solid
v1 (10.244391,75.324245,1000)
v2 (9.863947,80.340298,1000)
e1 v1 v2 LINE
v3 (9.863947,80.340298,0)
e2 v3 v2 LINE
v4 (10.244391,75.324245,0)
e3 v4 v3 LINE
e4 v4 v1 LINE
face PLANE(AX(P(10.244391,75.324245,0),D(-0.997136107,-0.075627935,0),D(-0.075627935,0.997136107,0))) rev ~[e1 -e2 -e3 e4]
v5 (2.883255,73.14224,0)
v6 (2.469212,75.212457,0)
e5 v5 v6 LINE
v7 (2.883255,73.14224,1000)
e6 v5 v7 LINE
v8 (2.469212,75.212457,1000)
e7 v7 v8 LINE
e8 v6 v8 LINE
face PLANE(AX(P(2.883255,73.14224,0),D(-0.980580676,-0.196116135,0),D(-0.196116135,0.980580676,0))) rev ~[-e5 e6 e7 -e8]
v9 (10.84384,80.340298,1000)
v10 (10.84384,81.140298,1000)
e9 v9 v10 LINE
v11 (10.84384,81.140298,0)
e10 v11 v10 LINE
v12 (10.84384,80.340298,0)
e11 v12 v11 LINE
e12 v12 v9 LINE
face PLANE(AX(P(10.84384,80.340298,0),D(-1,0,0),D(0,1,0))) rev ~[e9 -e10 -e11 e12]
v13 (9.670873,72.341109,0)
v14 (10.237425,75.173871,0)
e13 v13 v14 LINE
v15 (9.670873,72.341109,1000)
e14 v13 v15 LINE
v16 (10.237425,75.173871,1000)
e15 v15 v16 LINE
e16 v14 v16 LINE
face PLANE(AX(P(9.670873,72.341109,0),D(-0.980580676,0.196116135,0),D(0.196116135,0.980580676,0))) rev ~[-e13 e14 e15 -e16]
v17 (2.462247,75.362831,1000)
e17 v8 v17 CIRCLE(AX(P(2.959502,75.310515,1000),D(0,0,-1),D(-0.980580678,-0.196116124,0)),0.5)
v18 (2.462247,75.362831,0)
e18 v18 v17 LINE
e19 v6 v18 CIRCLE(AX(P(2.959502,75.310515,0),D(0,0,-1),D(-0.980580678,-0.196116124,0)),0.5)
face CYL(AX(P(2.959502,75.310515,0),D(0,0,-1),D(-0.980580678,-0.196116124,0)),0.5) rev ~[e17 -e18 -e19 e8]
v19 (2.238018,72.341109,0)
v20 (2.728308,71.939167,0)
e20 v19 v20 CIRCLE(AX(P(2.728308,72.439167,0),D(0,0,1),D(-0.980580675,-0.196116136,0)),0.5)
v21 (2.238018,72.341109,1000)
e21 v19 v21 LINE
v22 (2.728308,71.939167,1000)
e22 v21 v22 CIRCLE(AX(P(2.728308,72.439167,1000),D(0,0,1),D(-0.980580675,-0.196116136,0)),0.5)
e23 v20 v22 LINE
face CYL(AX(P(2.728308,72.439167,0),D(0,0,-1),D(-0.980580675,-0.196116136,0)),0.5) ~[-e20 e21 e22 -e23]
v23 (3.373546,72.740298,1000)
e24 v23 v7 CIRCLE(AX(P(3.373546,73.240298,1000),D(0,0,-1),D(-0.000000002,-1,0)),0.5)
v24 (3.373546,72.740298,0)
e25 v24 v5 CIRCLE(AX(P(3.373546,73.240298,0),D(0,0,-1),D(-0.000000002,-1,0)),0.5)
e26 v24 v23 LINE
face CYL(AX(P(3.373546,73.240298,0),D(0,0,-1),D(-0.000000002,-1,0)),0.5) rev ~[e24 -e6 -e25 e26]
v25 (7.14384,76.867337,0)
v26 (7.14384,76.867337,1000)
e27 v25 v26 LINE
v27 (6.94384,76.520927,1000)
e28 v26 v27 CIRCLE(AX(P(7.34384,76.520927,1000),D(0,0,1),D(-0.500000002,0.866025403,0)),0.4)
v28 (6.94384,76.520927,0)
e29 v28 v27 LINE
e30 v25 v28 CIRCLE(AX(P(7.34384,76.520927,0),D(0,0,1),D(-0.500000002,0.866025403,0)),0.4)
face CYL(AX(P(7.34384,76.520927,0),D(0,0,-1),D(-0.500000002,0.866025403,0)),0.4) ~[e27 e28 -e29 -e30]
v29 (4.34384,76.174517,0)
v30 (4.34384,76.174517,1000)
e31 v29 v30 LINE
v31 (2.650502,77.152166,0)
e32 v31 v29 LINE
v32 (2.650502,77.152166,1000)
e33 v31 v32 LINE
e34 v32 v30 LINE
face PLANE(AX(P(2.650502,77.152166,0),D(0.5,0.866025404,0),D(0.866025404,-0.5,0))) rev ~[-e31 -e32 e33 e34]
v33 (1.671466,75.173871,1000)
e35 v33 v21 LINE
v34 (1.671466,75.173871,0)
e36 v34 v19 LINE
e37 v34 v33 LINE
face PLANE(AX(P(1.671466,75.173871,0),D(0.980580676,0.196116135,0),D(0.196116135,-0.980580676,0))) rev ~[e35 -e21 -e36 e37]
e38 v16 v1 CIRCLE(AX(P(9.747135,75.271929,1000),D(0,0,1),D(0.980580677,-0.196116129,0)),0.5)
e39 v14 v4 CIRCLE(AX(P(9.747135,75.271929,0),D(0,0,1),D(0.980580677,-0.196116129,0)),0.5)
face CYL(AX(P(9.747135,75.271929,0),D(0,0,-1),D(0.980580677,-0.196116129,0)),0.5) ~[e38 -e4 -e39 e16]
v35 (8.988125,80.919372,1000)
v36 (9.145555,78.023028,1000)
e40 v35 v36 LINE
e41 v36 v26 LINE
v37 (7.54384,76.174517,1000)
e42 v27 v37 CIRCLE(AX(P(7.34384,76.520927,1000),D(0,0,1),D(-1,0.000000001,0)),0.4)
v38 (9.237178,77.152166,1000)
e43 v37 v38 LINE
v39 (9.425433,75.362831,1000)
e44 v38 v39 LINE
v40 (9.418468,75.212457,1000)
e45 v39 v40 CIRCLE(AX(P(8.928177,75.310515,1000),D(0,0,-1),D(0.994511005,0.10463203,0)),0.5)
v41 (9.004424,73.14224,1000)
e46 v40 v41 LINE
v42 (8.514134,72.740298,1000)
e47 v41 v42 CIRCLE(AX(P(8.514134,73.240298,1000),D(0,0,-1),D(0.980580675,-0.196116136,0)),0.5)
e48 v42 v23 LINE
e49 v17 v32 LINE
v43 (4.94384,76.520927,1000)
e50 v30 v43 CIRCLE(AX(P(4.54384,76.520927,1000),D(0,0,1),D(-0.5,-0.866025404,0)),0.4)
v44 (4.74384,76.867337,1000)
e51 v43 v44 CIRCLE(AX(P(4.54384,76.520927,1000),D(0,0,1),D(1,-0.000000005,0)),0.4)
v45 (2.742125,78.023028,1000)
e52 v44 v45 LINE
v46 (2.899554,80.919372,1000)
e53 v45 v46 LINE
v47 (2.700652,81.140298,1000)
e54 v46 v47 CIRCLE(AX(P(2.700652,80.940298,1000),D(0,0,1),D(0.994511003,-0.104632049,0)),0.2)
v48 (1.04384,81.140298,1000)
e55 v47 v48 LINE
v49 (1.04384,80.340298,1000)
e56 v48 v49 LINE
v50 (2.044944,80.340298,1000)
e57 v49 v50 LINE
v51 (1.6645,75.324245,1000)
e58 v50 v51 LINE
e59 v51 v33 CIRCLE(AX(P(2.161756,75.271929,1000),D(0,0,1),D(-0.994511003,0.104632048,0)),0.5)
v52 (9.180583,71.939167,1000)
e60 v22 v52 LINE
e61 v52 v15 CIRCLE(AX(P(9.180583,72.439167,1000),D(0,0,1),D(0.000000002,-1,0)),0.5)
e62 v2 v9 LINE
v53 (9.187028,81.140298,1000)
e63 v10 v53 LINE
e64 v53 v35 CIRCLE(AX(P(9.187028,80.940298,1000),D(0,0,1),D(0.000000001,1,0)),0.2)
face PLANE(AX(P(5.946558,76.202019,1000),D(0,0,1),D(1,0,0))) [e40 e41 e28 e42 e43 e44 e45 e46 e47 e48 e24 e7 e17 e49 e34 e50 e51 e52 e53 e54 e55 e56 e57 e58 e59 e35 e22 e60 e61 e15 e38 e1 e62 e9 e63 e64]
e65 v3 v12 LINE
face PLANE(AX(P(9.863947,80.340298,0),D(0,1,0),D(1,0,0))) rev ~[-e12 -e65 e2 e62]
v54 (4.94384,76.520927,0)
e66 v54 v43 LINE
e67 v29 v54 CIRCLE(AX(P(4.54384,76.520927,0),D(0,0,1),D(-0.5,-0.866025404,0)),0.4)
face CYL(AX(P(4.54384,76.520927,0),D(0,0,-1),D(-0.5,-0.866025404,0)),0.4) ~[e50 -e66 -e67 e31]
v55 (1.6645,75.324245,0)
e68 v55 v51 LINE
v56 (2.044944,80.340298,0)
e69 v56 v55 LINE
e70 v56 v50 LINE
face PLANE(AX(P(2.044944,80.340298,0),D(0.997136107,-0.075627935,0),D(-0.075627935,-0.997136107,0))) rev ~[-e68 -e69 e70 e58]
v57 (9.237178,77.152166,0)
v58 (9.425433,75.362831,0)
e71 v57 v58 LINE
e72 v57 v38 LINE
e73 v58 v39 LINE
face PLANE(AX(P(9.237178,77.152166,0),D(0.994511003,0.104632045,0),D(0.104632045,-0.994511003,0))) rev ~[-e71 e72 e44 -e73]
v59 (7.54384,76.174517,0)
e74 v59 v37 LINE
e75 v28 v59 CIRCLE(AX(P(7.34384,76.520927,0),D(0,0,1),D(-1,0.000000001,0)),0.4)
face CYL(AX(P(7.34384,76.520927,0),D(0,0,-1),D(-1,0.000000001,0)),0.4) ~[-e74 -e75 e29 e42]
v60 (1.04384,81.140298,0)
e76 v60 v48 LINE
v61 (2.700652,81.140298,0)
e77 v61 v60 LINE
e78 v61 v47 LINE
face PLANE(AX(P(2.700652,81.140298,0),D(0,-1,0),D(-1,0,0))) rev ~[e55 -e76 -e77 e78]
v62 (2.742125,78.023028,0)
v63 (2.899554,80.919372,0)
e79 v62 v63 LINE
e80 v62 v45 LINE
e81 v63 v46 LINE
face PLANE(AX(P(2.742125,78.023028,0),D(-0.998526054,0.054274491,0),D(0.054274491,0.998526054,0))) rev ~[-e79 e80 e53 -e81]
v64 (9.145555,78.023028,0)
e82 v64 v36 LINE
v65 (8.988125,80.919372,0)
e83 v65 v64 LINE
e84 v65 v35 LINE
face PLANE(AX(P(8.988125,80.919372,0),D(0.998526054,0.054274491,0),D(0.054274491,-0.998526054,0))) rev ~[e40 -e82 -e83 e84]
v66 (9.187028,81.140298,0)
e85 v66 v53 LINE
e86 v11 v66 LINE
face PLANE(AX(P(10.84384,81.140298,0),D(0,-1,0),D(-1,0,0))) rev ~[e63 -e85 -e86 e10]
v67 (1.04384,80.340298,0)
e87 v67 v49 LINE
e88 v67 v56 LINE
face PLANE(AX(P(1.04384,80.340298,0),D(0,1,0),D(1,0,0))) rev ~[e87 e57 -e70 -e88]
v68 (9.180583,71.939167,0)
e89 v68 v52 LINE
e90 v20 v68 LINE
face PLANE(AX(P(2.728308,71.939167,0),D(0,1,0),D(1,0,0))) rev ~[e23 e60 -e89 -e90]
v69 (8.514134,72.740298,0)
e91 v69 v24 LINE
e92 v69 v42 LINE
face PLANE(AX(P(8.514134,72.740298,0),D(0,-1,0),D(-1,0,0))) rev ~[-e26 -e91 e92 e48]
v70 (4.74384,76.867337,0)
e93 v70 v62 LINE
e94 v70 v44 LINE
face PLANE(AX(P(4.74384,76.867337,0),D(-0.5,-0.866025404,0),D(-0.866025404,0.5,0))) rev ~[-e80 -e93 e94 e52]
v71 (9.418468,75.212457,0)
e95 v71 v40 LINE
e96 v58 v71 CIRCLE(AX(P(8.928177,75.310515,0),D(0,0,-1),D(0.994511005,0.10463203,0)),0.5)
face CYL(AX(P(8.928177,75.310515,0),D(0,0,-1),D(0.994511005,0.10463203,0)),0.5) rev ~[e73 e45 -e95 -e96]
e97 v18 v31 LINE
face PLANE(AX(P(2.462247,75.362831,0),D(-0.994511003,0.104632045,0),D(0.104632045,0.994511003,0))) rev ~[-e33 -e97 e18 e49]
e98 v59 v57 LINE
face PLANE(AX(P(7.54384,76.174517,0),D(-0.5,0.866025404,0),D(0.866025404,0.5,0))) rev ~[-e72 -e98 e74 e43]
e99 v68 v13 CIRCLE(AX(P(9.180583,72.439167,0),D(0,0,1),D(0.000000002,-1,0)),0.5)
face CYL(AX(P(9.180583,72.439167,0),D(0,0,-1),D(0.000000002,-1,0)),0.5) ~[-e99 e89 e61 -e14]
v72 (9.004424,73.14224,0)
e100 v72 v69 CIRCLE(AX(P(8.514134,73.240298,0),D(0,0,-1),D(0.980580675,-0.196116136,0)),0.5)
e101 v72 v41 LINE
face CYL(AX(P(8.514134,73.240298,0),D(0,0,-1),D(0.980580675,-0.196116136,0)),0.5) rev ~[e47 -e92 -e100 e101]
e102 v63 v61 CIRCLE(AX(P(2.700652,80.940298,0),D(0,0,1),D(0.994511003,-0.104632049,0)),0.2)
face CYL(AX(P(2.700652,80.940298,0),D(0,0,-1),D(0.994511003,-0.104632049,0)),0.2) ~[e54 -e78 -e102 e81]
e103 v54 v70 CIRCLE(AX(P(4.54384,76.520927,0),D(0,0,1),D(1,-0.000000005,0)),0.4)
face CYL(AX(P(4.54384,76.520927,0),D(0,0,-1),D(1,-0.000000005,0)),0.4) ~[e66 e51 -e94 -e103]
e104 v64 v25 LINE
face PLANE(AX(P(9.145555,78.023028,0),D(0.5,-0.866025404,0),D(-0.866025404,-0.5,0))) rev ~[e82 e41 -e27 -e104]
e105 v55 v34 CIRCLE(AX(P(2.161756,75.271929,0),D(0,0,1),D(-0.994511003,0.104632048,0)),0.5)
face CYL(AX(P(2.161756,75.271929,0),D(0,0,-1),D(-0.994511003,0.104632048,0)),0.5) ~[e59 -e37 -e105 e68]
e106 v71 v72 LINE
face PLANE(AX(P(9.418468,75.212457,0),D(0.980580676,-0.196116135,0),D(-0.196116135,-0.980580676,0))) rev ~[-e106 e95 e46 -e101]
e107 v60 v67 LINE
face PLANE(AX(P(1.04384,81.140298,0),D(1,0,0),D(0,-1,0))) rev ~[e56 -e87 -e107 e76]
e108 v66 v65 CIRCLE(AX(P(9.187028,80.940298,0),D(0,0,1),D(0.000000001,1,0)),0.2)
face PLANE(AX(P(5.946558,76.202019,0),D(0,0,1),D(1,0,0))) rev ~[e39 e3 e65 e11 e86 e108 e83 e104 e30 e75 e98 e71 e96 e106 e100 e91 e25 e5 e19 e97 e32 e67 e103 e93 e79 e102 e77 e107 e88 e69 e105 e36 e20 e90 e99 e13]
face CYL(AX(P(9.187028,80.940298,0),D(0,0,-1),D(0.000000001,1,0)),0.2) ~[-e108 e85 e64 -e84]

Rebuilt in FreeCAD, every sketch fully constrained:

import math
import FreeCAD as App
import Part
import Sketcher
Q = App.Units.Quantity

doc = App.newDocument("Part")
body = doc.addObject("PartDesign::Body", "Body")

# Sketch on XY plane
sketch1 = doc.addObject("Sketcher::SketchObject", "Sketch")
body.addObject(sketch1)
sketch1.AttachmentSupport = (doc.XY_Plane, [""])
sketch1.MapMode = "FlatFace"
sketch1.addGeometry(Part.LineSegment(App.Vector(1.04, 81.14, 0), App.Vector(1.04, 80.34, 0)), False)
sketch1.addGeometry(Part.LineSegment(App.Vector(1.04, 80.34, 0), App.Vector(2.04, 80.34, 0)), False)
sketch1.addGeometry(Part.LineSegment(App.Vector(2.04, 80.34, 0), App.Vector(1.66, 75.32, 0)), False)
sketch1.addGeometry(Part.ArcOfCircle(Part.Circle(App.Vector(2.16, 75.27, 0), App.Vector(0, 0, 1), 0.5), math.radians(173.99), math.radians(191.31)), False)
sketch1.addGeometry(Part.LineSegment(App.Vector(1.67, 75.17, 0), App.Vector(2.24, 72.34, 0)), False)
sketch1.addGeometry(Part.ArcOfCircle(Part.Circle(App.Vector(2.73, 72.44, 0), App.Vector(0, 0, 1), 0.5), math.radians(-169), math.radians(-90)), False)
sketch1.addGeometry(Part.LineSegment(App.Vector(2.73, 71.94, 0), App.Vector(9.18, 71.94, 0)), False)
sketch1.addGeometry(Part.ArcOfCircle(Part.Circle(App.Vector(9.18, 72.44, 0), App.Vector(0, 0, 1), 0.5), math.radians(-90), math.radians(-11)), False)
sketch1.addGeometry(Part.LineSegment(App.Vector(9.67, 72.34, 0), App.Vector(10.24, 75.17, 0)), False)
sketch1.addGeometry(Part.ArcOfCircle(Part.Circle(App.Vector(9.75, 75.27, 0), App.Vector(0, 0, 1), 0.5), math.radians(-11.31), math.radians(6.01)), False)
sketch1.addGeometry(Part.LineSegment(App.Vector(10.24, 75.32, 0), App.Vector(9.86, 80.34, 0)), False)
sketch1.addGeometry(Part.LineSegment(App.Vector(9.86, 80.34, 0), App.Vector(10.84, 80.34, 0)), False)
sketch1.addGeometry(Part.LineSegment(App.Vector(10.84, 80.34, 0), App.Vector(10.84, 81.14, 0)), False)
sketch1.addGeometry(Part.LineSegment(App.Vector(10.84, 81.14, 0), App.Vector(9.19, 81.14, 0)), False)
sketch1.addGeometry(Part.ArcOfCircle(Part.Circle(App.Vector(9.19, 80.94, 0), App.Vector(0, 0, 1), 0.2), math.radians(90), math.radians(186)), False)
sketch1.addGeometry(Part.LineSegment(App.Vector(8.99, 80.92, 0), App.Vector(9.15, 78.02, 0)), False)
sketch1.addGeometry(Part.LineSegment(App.Vector(9.15, 78.02, 0), App.Vector(7.14, 76.87, 0)), False)
sketch1.addGeometry(Part.ArcOfCircle(Part.Circle(App.Vector(7.34, 76.52, 0), App.Vector(0, 0, 1), 0.4), math.radians(120), math.radians(180)), False)
sketch1.addGeometry(Part.ArcOfCircle(Part.Circle(App.Vector(7.34, 76.52, 0), App.Vector(0, 0, 1), 0.4), math.radians(180), math.radians(300)), False)
sketch1.addGeometry(Part.LineSegment(App.Vector(7.54, 76.17, 0), App.Vector(9.24, 77.15, 0)), False)
sketch1.addGeometry(Part.LineSegment(App.Vector(9.24, 77.15, 0), App.Vector(9.43, 75.36, 0)), False)
sketch1.addGeometry(Part.ArcOfCircle(Part.Circle(App.Vector(8.93, 75.31, 0), App.Vector(0, 0, 1), 0.5), math.radians(-11.31), math.radians(6.01)), False)
sketch1.addGeometry(Part.LineSegment(App.Vector(9.42, 75.21, 0), App.Vector(9, 73.14, 0)), False)
sketch1.addGeometry(Part.ArcOfCircle(Part.Circle(App.Vector(8.51, 73.24, 0), App.Vector(0, 0, 1), 0.5), math.radians(-90), math.radians(-11)), False)
sketch1.addGeometry(Part.LineSegment(App.Vector(8.51, 72.74, 0), App.Vector(3.37, 72.74, 0)), False)
sketch1.addGeometry(Part.ArcOfCircle(Part.Circle(App.Vector(3.37, 73.24, 0), App.Vector(0, 0, 1), 0.5), math.radians(-169), math.radians(-90)), False)
sketch1.addGeometry(Part.LineSegment(App.Vector(2.88, 73.14, 0), App.Vector(2.47, 75.21, 0)), False)
sketch1.addGeometry(Part.ArcOfCircle(Part.Circle(App.Vector(2.96, 75.31, 0), App.Vector(0, 0, 1), 0.5), math.radians(173.99), math.radians(191.31)), False)
sketch1.addGeometry(Part.LineSegment(App.Vector(2.46, 75.36, 0), App.Vector(2.65, 77.15, 0)), False)
sketch1.addGeometry(Part.LineSegment(App.Vector(2.65, 77.15, 0), App.Vector(4.34, 76.17, 0)), False)
sketch1.addGeometry(Part.ArcOfCircle(Part.Circle(App.Vector(4.54, 76.52, 0), App.Vector(0, 0, 1), 0.4), math.radians(-120), math.radians(0)), False)
sketch1.addGeometry(Part.ArcOfCircle(Part.Circle(App.Vector(4.54, 76.52, 0), App.Vector(0, 0, 1), 0.4), math.radians(0), math.radians(60)), False)
sketch1.addGeometry(Part.LineSegment(App.Vector(4.74, 76.87, 0), App.Vector(2.74, 78.02, 0)), False)
sketch1.addGeometry(Part.LineSegment(App.Vector(2.74, 78.02, 0), App.Vector(2.9, 80.92, 0)), False)
sketch1.addGeometry(Part.ArcOfCircle(Part.Circle(App.Vector(2.7, 80.94, 0), App.Vector(0, 0, 1), 0.2), math.radians(-6), math.radians(90)), False)
sketch1.addGeometry(Part.LineSegment(App.Vector(2.7, 81.14, 0), App.Vector(1.04, 81.14, 0)), False)
sketch1.addConstraint(Sketcher.Constraint("Coincident", 0, 2, 1, 1))
sketch1.addConstraint(Sketcher.Constraint("Coincident", 1, 2, 2, 1))
sketch1.addConstraint(Sketcher.Constraint("Coincident", 2, 2, 3, 1))
sketch1.addConstraint(Sketcher.Constraint("Tangent", 3, 2, 4, 1))
sketch1.addConstraint(Sketcher.Constraint("Tangent", 4, 2, 5, 1))
sketch1.addConstraint(Sketcher.Constraint("Tangent", 5, 2, 6, 1))
sketch1.addConstraint(Sketcher.Constraint("Tangent", 6, 2, 7, 1))
sketch1.addConstraint(Sketcher.Constraint("Tangent", 7, 2, 8, 1))
sketch1.addConstraint(Sketcher.Constraint("Tangent", 8, 2, 9, 1))
sketch1.addConstraint(Sketcher.Constraint("Coincident", 9, 2, 10, 1))
sketch1.addConstraint(Sketcher.Constraint("Coincident", 10, 2, 11, 1))
sketch1.addConstraint(Sketcher.Constraint("Coincident", 11, 2, 12, 1))
sketch1.addConstraint(Sketcher.Constraint("Coincident", 12, 2, 13, 1))
sketch1.addConstraint(Sketcher.Constraint("Tangent", 13, 2, 14, 1))
sketch1.addConstraint(Sketcher.Constraint("Coincident", 14, 2, 15, 1))
sketch1.addConstraint(Sketcher.Constraint("Coincident", 15, 2, 16, 1))
sketch1.addConstraint(Sketcher.Constraint("Tangent", 16, 2, 17, 1))
sketch1.addConstraint(Sketcher.Constraint("Tangent", 17, 2, 18, 1))
sketch1.addConstraint(Sketcher.Constraint("Tangent", 18, 2, 19, 1))
sketch1.addConstraint(Sketcher.Constraint("Coincident", 19, 2, 20, 1))
sketch1.addConstraint(Sketcher.Constraint("Tangent", 20, 2, 21, 2))
sketch1.addConstraint(Sketcher.Constraint("Tangent", 21, 1, 22, 1))
sketch1.addConstraint(Sketcher.Constraint("Tangent", 22, 2, 23, 2))
sketch1.addConstraint(Sketcher.Constraint("Tangent", 23, 1, 24, 1))
sketch1.addConstraint(Sketcher.Constraint("Tangent", 24, 2, 25, 2))
sketch1.addConstraint(Sketcher.Constraint("Tangent", 25, 1, 26, 1))
sketch1.addConstraint(Sketcher.Constraint("Tangent", 26, 2, 27, 2))
sketch1.addConstraint(Sketcher.Constraint("Tangent", 27, 1, 28, 1))
sketch1.addConstraint(Sketcher.Constraint("Coincident", 28, 2, 29, 1))
sketch1.addConstraint(Sketcher.Constraint("Tangent", 29, 2, 30, 1))
sketch1.addConstraint(Sketcher.Constraint("Tangent", 30, 2, 31, 1))
sketch1.addConstraint(Sketcher.Constraint("Tangent", 31, 2, 32, 1))
sketch1.addConstraint(Sketcher.Constraint("Coincident", 32, 2, 33, 1))
sketch1.addConstraint(Sketcher.Constraint("Coincident", 33, 2, 34, 1))
sketch1.addConstraint(Sketcher.Constraint("Tangent", 34, 2, 35, 1))
sketch1.addConstraint(Sketcher.Constraint("Coincident", 35, 2, 0, 1))
sketch1.addConstraint(Sketcher.Constraint("Vertical", 0))
sketch1.addConstraint(Sketcher.Constraint("Horizontal", 1))
sketch1.addConstraint(Sketcher.Constraint("Horizontal", 6))
sketch1.addConstraint(Sketcher.Constraint("Horizontal", 11))
sketch1.addConstraint(Sketcher.Constraint("Vertical", 12))
sketch1.addConstraint(Sketcher.Constraint("Horizontal", 13))
sketch1.addConstraint(Sketcher.Constraint("Horizontal", 24))
sketch1.addConstraint(Sketcher.Constraint("Horizontal", 35))
sketch1.addConstraint(Sketcher.Constraint("Equal", 3, 5))
sketch1.addConstraint(Sketcher.Constraint("Equal", 5, 7))
sketch1.addConstraint(Sketcher.Constraint("Equal", 7, 9))
sketch1.addConstraint(Sketcher.Constraint("Equal", 17, 18))
sketch1.addConstraint(Sketcher.Constraint("Equal", 9, 21))
sketch1.addConstraint(Sketcher.Constraint("Equal", 21, 23))
sketch1.addConstraint(Sketcher.Constraint("Equal", 23, 25))
sketch1.addConstraint(Sketcher.Constraint("Equal", 25, 27))
sketch1.addConstraint(Sketcher.Constraint("Equal", 18, 30))
sketch1.addConstraint(Sketcher.Constraint("Equal", 30, 31))
sketch1.addConstraint(Sketcher.Constraint("Equal", 14, 34))
sketch1.addConstraint(Sketcher.Constraint("Parallel", 16, 19))
sketch1.addConstraint(Sketcher.Constraint("Parallel", 8, 22))
sketch1.addConstraint(Sketcher.Constraint("Parallel", 4, 26))
sketch1.addConstraint(Sketcher.Constraint("Parallel", 29, 32))
sketch1.addConstraint(Sketcher.Constraint("Horizontal", 3, 3, 9, 3))
sketch1.addConstraint(Sketcher.Constraint("Horizontal", 21, 3, 27, 3))
sketch1.addConstraint(Sketcher.Constraint("Horizontal", 18, 3, 30, 3))
sketch1.addConstraint(Sketcher.Constraint("Horizontal", 14, 3, 34, 3))
sketch1.addConstraint(Sketcher.Constraint("Horizontal", 4, 2, 7, 2))
sketch1.addConstraint(Sketcher.Constraint("Horizontal", 2, 2, 9, 2))
sketch1.addConstraint(Sketcher.Constraint("Horizontal", 1, 2, 10, 2))
sketch1.addConstraint(Sketcher.Constraint("Horizontal", 31, 3, 17, 2))
sketch1.addConstraint(Sketcher.Constraint("Horizontal", 20, 2, 27, 1))
sketch1.addConstraint(Sketcher.Constraint("Horizontal", 19, 2, 28, 2))
sketch1.addConstraint(Sketcher.Constraint("Horizontal", 18, 2, 29, 2))
sketch1.addConstraint(Sketcher.Constraint("Horizontal", 17, 2, 30, 2))
sketch1.addConstraint(Sketcher.Constraint("Horizontal", 15, 2, 32, 2))
sketch1.addConstraint(Sketcher.Constraint("Horizontal", 14, 2, 33, 2))
sketch1.addConstraint(Sketcher.Constraint("Equal", 13, 35))
sketch1.addConstraint(Sketcher.Constraint("Equal", 2, 10))
sketch1.addConstraint(Sketcher.Constraint("Equal", 15, 33))
sketch1.addConstraint(Sketcher.Constraint("Radius", 3, Q("0.5 mm")))
sketch1.addConstraint(Sketcher.Constraint("Radius", 14, Q("0.2 mm")))
sketch1.addConstraint(Sketcher.Constraint("Radius", 17, Q("0.4 mm")))
sketch1.addConstraint(Sketcher.Constraint("Angle", 16, Q("-150 deg")))
sketch1.addConstraint(Sketcher.Constraint("DistanceY", 0, 2, 0, 1, Q("0.8 mm")))
sketch1.addConstraint(Sketcher.Constraint("DistanceX", 30, 2, 17, 2, Q("2 mm")))
sketch1.addConstraint(Sketcher.Constraint("DistanceX", 0, 2, 30, 3, Q("3.5 mm")))
sketch1.addConstraint(Sketcher.Constraint("DistanceY", 9, 3, 17, 3, Q("1.248999 mm")))
sketch1.addConstraint(Sketcher.Constraint("DistanceX", 23, 3, 9, 3, Q("1.233001 mm")))
sketch1.addConstraint(Sketcher.Constraint("DistanceX", 2, 2, 27, 3, Q("1.295002 mm")))
sketch1.addConstraint(Sketcher.Constraint("DistanceY", 21, 3, 18, 2, Q("0.864002 mm")))
sketch1.addConstraint(Sketcher.Constraint("DistanceX", 21, 3, 19, 2, Q("0.309 mm")))
sketch1.addConstraint(Sketcher.Constraint("Distance", 19, Q("1.955298 mm")))
sketch1.addConstraint(Sketcher.Constraint("DistanceX", 24, 2, 24, 1, Q("5.140588 mm")))
sketch1.addConstraint(Sketcher.Constraint("DistanceX", -1, 1, 2, 2, Q("1.6645 mm")))
sketch1.addConstraint(Sketcher.Constraint("DistanceY", 17, 3, 15, 2, Q("1.502101 mm")))
sketch1.addConstraint(Sketcher.Constraint("Distance", 2, Q("5.03046 mm")))
sketch1.addConstraint(Sketcher.Constraint("Distance", 4, Q("2.888862 mm")))
sketch1.addConstraint(Sketcher.Constraint("Distance", 15, Q("2.900619 mm")))
sketch1.addConstraint(Sketcher.Constraint("DistanceX", 1, 1, 1, 2, Q("1.001104 mm")))
sketch1.addConstraint(Sketcher.Constraint("DistanceX", 6, 1, 6, 2, Q("6.452275 mm")))
sketch1.addConstraint(Sketcher.Constraint("DistanceX", 11, 1, 11, 2, Q("0.979892 mm")))
sketch1.addConstraint(Sketcher.Constraint("DistanceX", 13, 2, 13, 1, Q("1.656812 mm")))
sketch1.addConstraint(Sketcher.Constraint("DistanceY", -1, 1, 3, 3, Q("75.271929 mm")))
pad1 = doc.addObject("PartDesign::Pad", "Pad")
body.addObject(pad1)
pad1.Profile = sketch1
pad1.Length = 1000

doc.recompute()
